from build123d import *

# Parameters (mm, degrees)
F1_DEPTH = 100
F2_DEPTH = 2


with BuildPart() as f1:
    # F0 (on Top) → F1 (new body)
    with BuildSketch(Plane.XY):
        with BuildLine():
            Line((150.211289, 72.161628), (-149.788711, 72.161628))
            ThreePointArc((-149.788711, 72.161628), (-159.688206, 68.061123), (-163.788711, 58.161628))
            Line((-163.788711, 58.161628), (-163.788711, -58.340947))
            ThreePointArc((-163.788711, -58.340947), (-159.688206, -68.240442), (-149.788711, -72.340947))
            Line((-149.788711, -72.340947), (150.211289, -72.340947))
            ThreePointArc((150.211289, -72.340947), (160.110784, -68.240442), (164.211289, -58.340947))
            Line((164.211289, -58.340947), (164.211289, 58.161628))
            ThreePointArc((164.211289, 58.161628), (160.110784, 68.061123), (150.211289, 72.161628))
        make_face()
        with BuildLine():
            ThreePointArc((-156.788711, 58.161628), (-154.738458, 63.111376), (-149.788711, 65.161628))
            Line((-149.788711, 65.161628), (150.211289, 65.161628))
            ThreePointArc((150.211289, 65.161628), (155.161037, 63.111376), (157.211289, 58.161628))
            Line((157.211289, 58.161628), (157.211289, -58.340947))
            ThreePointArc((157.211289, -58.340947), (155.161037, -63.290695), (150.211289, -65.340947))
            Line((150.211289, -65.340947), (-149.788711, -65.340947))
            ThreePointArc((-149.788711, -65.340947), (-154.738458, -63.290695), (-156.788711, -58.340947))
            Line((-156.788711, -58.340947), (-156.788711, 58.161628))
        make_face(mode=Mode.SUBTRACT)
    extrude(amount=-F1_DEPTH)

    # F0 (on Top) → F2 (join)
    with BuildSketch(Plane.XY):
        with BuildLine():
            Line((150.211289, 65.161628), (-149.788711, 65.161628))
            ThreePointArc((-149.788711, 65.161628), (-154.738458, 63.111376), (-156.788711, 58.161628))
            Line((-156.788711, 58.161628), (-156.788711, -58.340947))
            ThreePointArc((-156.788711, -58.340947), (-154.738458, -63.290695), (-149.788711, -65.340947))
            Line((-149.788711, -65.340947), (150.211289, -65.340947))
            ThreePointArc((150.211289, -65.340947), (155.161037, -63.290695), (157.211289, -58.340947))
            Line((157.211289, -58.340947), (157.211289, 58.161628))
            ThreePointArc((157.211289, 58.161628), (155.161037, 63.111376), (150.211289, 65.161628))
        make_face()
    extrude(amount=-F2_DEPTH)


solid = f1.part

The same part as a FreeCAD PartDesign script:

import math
import FreeCAD as App
import Part
import Sketcher

V = App.Vector

doc = App.newDocument("Part")
params = doc.addObject("Spreadsheet::Sheet", "Params")
for row, (alias, value) in enumerate([
    ("sketch1_radius", "14 mm"),
    ("sketch1_radius2", "7 mm"),
    ("sketch1_width", "300 mm"),
    ("pad1_length", "100 mm"),
    ("sketch2_radius", "7 mm"),
    ("sketch2_width", "300 mm"),
    ("pad2_length", "2 mm"),
], start=1):
    params.set(f"A{row}", alias)
    params.set(f"B{row}", "=" + value)
    params.setAlias(f"B{row}", alias)

body = doc.addObject("PartDesign::Body", "Body")

sketch1 = body.newObject("Sketcher::SketchObject", "Sketch")
sketch1.AttachmentSupport = (doc.getObject("XY_Plane"), [""])
sketch1.MapMode = "FlatFace"
sketch1.addGeometry(Part.LineSegment(V(150, 72, 0), V(-150, 72, 0)), False)
sketch1.addGeometry(Part.ArcOfCircle(Part.Circle(V(-150, 58, 0), V(0, 0, 1), 14), math.radians(90), math.radians(180)), False)
sketch1.addGeometry(Part.LineSegment(V(-164, 58, 0), V(-164, -58, 0)), False)
sketch1.addGeometry(Part.ArcOfCircle(Part.Circle(V(-150, -58, 0), V(0, 0, 1), 14), math.radians(180), math.radians(270)), False)
sketch1.addGeometry(Part.LineSegment(V(-150, -72, 0), V(150, -72, 0)), False)
sketch1.addGeometry(Part.ArcOfCircle(Part.Circle(V(150, -58, 0), V(0, 0, 1), 14), math.radians(-90), math.radians(0)), False)
sketch1.addGeometry(Part.LineSegment(V(164, -58, 0), V(164, 58, 0)), False)
sketch1.addGeometry(Part.ArcOfCircle(Part.Circle(V(150, 58, 0), V(0, 0, 1), 14), math.radians(0), math.radians(90)), False)
sketch1.addGeometry(Part.LineSegment(V(-157, -58, 0), V(-157, 58, 0)), False)
sketch1.addGeometry(Part.ArcOfCircle(Part.Circle(V(-150, 58, 0), V(0, 0, 1), 7), math.radians(90), math.radians(180)), False)
sketch1.addGeometry(Part.LineSegment(V(-150, 65, 0), V(150, 65, 0)), False)
sketch1.addGeometry(Part.ArcOfCircle(Part.Circle(V(150, 58, 0), V(0, 0, 1), 7), math.radians(0), math.radians(90)), False)
sketch1.addGeometry(Part.LineSegment(V(157, 58, 0), V(157, -58, 0)), False)
sketch1.addGeometry(Part.ArcOfCircle(Part.Circle(V(150, -58, 0), V(0, 0, 1), 7), math.radians(-90), math.radians(0)), False)
sketch1.addGeometry(Part.LineSegment(V(150, -65, 0), V(-150, -65, 0)), False)
sketch1.addGeometry(Part.ArcOfCircle(Part.Circle(V(-150, -58, 0), V(0, 0, 1), 7), math.radians(180), math.radians(270)), False)
sketch1.addConstraint(Sketcher.Constraint("Tangent", 0, 2, 1, 1))
sketch1.addConstraint(Sketcher.Constraint("Tangent", 1, 2, 2, 1))
sketch1.addConstraint(Sketcher.Constraint("Tangent", 2, 2, 3, 1))
sketch1.addConstraint(Sketcher.Constraint("Tangent", 3, 2, 4, 1))
sketch1.addConstraint(Sketcher.Constraint("Tangent", 4, 2, 5, 1))
sketch1.addConstraint(Sketcher.Constraint("Tangent", 5, 2, 6, 1))
sketch1.addConstraint(Sketcher.Constraint("Tangent", 6, 2, 7, 1))
sketch1.addConstraint(Sketcher.Constraint("Tangent", 7, 2, 0, 1))
sketch1.addConstraint(Sketcher.Constraint("Tangent", 8, 2, 9, 2))
sketch1.addConstraint(Sketcher.Constraint("Tangent", 9, 1, 10, 1))
sketch1.addConstraint(Sketcher.Constraint("Tangent", 10, 2, 11, 2))
sketch1.addConstraint(Sketcher.Constraint("Tangent", 11, 1, 12, 1))
sketch1.addConstraint(Sketcher.Constraint("Tangent", 12, 2, 13, 2))
sketch1.addConstraint(Sketcher.Constraint("Tangent", 13, 1, 14, 1))
sketch1.addConstraint(Sketcher.Constraint("Tangent", 14, 2, 15, 2))
sketch1.addConstraint(Sketcher.Constraint("Tangent", 15, 1, 8, 1))
sketch1.addConstraint(Sketcher.Constraint("Horizontal", 0))
sketch1.addConstraint(Sketcher.Constraint("Vertical", 2))
sketch1.addConstraint(Sketcher.Constraint("Horizontal", 4))
sketch1.addConstraint(Sketcher.Constraint("Vertical", 6))
sketch1.addConstraint(Sketcher.Constraint("Vertical", 8))
sketch1.addConstraint(Sketcher.Constraint("Horizontal", 10))
sketch1.addConstraint(Sketcher.Constraint("Vertical", 12))
sketch1.addConstraint(Sketcher.Constraint("Horizontal", 14))
sketch1.addConstraint(Sketcher.Constraint("Coincident", 9, 3, 1, 3))
sketch1.addConstraint(Sketcher.Constraint("Coincident", 11, 3, 7, 3))
sketch1.addConstraint(Sketcher.Constraint("Coincident", 13, 3, 5, 3))
sketch1.addConstraint(Sketcher.Constraint("Equal", 1, 3))
sketch1.addConstraint(Sketcher.Constraint("Equal", 3, 5))
sketch1.addConstraint(Sketcher.Constraint("Equal", 5, 7))
sketch1.addConstraint(Sketcher.Constraint("Equal", 13, 15))
sketch1.addConstraint(Sketcher.Constraint("Radius", 1, 14.0))
sketch1.addConstraint(Sketcher.Constraint("Radius", 9, 7.0))
sketch1.addConstraint(Sketcher.Constraint("DistanceX", 0, 2, 0, 1, 300.0))
sketch1.addConstraint(Sketcher.Constraint("DistanceY", 2, 2, 2, 1, 116.502575))
sketch1.addConstraint(Sketcher.Constraint("DistanceX", 1, 3, -1, 1, 149.788711))
sketch1.addConstraint(Sketcher.Constraint("DistanceY", -1, 1, 1, 3, 58.161628))
sketch1.setExpression("Constraints[31]", "Params.sketch1_radius")
sketch1.setExpression("Constraints[32]", "Params.sketch1_radius2")
sketch1.setExpression("Constraints[33]", "Params.sketch1_width")
pad1 = body.newObject("PartDesign::Pad", "Pad")
pad1.Profile = sketch1
pad1.setExpression("Length", "Params.pad1_length")
pad1.Reversed = True

sketch2 = body.newObject("Sketcher::SketchObject", "Sketch001")
sketch2.AttachmentSupport = (doc.getObject("XY_Plane"), [""])
sketch2.MapMode = "FlatFace"
sketch2.addGeometry(Part.LineSegment(V(150, 65, 0), V(-150, 65, 0)), False)
sketch2.addGeometry(Part.ArcOfCircle(Part.Circle(V(-150, 58, 0), V(0, 0, 1), 7), math.radians(90), math.radians(180)), False)
sketch2.addGeometry(Part.LineSegment(V(-157, 58, 0), V(-157, -58, 0)), False)
sketch2.addGeometry(Part.ArcOfCircle(Part.Circle(V(-150, -58, 0), V(0, 0, 1), 7), math.radians(180), math.radians(270)), False)
sketch2.addGeometry(Part.LineSegment(V(-150, -65, 0), V(150, -65, 0)), False)
sketch2.addGeometry(Part.ArcOfCircle(Part.Circle(V(150, -58, 0), V(0, 0, 1), 7), math.radians(-90), math.radians(0)), False)
sketch2.addGeometry(Part.LineSegment(V(157, -58, 0), V(157, 58, 0)), False)
sketch2.addGeometry(Part.ArcOfCircle(Part.Circle(V(150, 58, 0), V(0, 0, 1), 7), math.radians(0), math.radians(90)), False)
sketch2.addConstraint(Sketcher.Constraint("Tangent", 0, 2, 1, 1))
sketch2.addConstraint(Sketcher.Constraint("Tangent", 1, 2, 2, 1))
sketch2.addConstraint(Sketcher.Constraint("Tangent", 2, 2, 3, 1))
sketch2.addConstraint(Sketcher.Constraint("Tangent", 3, 2, 4, 1))
sketch2.addConstraint(Sketcher.Constraint("Tangent", 4, 2, 5, 1))
sketch2.addConstraint(Sketcher.Constraint("Tangent", 5, 2, 6, 1))
sketch2.addConstraint(Sketcher.Constraint("Tangent", 6, 2, 7, 1))
sketch2.addConstraint(Sketcher.Constraint("Tangent", 7, 2, 0, 1))
sketch2.addConstraint(Sketcher.Constraint("Horizontal", 0))
sketch2.addConstraint(Sketcher.Constraint("Vertical", 2))
sketch2.addConstraint(Sketcher.Constraint("Horizontal", 4))
sketch2.addConstraint(Sketcher.Constraint("Vertical", 6))
sketch2.addConstraint(Sketcher.Constraint("Equal", 1, 3))
sketch2.addConstraint(Sketcher.Constraint("Equal", 3, 5))
sketch2.addConstraint(Sketcher.Constraint("Equal", 5, 7))
sketch2.addConstraint(Sketcher.Constraint("Radius", 1, 7.0))
sketch2.addConstraint(Sketcher.Constraint("DistanceX", 0, 2, 0, 1, 300.0))
sketch2.addConstraint(Sketcher.Constraint("DistanceY", 2, 2, 2, 1, 116.502575))
sketch2.addConstraint(Sketcher.Constraint("DistanceX", 1, 3, -1, 1, 149.788711))
sketch2.addConstraint(Sketcher.Constraint("DistanceY", -1, 1, 1, 3, 58.161628))
sketch2.setExpression("Constraints[15]", "Params.sketch2_radius")
sketch2.setExpression("Constraints[16]", "Params.sketch2_width")
pad2 = body.newObject("PartDesign::Pad", "Pad001")
pad2.Profile = sketch2
pad2.setExpression("Length", "Params.pad2_length")
pad2.Reversed = True

doc.recompute()
